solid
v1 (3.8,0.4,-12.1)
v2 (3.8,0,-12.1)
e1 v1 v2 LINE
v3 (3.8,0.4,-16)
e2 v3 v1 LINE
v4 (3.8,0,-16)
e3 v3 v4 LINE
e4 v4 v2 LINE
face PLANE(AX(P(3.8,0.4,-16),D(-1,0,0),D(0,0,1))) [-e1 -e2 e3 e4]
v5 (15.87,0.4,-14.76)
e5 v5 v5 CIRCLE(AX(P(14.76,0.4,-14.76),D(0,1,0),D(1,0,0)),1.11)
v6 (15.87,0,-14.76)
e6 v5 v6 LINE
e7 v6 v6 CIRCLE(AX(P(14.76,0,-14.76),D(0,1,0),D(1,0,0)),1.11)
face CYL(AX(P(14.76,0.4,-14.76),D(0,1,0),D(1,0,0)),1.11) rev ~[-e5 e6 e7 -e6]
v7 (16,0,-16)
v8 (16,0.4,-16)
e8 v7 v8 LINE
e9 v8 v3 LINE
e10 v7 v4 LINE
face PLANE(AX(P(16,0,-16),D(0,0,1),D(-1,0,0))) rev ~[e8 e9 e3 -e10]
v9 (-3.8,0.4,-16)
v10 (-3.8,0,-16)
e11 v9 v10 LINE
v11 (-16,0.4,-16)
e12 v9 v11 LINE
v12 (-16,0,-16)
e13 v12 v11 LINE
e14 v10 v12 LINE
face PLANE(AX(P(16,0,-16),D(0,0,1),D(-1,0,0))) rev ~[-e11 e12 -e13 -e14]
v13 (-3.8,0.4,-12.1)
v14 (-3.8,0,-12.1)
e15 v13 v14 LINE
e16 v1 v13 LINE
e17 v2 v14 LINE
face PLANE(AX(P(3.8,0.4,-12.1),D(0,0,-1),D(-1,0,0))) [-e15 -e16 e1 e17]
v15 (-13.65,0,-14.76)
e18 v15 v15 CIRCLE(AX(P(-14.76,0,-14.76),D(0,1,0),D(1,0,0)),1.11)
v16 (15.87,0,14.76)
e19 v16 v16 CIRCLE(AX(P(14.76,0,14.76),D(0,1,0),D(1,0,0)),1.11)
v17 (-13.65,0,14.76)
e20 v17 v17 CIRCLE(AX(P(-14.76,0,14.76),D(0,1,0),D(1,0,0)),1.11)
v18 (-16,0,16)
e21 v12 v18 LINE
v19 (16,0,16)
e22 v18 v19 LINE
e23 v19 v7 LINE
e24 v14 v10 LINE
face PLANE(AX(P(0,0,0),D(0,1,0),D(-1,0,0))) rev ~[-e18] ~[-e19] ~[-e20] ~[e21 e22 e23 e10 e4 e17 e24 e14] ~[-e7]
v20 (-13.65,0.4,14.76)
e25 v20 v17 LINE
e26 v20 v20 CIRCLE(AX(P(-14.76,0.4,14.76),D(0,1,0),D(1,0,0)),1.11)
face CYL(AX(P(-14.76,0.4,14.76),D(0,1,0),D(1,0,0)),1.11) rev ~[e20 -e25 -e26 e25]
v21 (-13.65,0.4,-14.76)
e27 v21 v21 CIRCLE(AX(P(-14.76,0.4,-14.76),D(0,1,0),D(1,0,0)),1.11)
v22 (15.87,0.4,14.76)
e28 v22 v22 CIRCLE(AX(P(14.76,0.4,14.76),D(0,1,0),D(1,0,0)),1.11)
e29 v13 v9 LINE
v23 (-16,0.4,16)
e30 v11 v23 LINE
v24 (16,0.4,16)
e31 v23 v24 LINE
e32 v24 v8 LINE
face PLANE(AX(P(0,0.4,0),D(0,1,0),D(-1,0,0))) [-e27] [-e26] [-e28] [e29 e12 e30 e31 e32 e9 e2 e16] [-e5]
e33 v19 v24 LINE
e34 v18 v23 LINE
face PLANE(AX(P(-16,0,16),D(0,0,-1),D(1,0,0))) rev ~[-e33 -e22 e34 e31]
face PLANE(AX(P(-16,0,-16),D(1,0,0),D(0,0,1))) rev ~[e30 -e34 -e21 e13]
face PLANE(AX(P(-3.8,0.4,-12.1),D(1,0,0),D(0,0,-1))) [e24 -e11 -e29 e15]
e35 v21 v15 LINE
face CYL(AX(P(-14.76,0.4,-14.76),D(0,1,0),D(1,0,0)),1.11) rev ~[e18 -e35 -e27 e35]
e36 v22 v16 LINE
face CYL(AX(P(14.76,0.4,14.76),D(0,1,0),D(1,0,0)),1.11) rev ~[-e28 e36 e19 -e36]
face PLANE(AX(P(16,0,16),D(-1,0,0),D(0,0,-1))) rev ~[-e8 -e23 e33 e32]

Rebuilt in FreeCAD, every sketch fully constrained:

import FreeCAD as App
import Part
import Sketcher
from FreeCAD import Vector


def add_polygon(sketch, points):
    """Adds a closed chain of lines whose ends are joined by coincident constraints."""
    first, n = sketch.GeometryCount, len(points)
    for a, b in zip(points, points[1:] + points[:1]):
        sketch.addGeometry(Part.LineSegment(App.Vector(*a, 0), App.Vector(*b, 0)), False)
    for i in range(n):
        sketch.addConstraint(Sketcher.Constraint("Coincident", first + i, 2, first + (i + 1) % n, 1))

doc = App.newDocument("Part")
params = doc.addObject("Spreadsheet::Sheet", "Params")
for row, (alias, value) in enumerate([
    ("sketch1_width", "32 mm"),
    ("pad1_length", "0.4 mm"),
    ("sketch2_diameter", "2.22 mm"),
    ("pocket1_length", "0.4 mm"),
    ("sketch3_width", "7.6 mm"),
    ("sketch3_height", "3.9 mm"),
    ("pocket2_length", "0.4 mm"),
], start=1):
    params.set(f"A{row}", alias)
    params.set(f"B{row}", "=" + value)
    params.setAlias(f"B{row}", alias)

body = doc.addObject("PartDesign::Body", "Body")

sketch1 = body.newObject("Sketcher::SketchObject", "Sketch")
sketch1.AttachmentSupport = (doc.getObject("XZ_Plane"), [""])
sketch1.MapMode = "FlatFace"
add_polygon(sketch1, [(-16, -16), (-16, 16), (16, 16), (16, -16)])
sketch1.addConstraint([
    Sketcher.Constraint("Vertical", 0),
    Sketcher.Constraint("Horizontal", 1),
    Sketcher.Constraint("Vertical", 2),
    Sketcher.Constraint("Horizontal", 3),
    Sketcher.Constraint("Symmetric", 0, 2, 2, 2, -1, 1),
    Sketcher.Constraint("Equal", 3, 0),
    Sketcher.Constraint("DistanceX", 1, 1, 1, 2, 32.0),
])
sketch1.setExpression("Constraints[10]", "Params.sketch1_width")
pad1 = body.newObject("PartDesign::Pad", "Pad")
pad1.Profile = sketch1
pad1.setExpression("Length", "Params.pad1_length")
pad1.Reversed = True

sketch2 = body.newObject("Sketcher::SketchObject", "Sketch001")
sketch2.AttachmentSupport = (doc.getObject("XZ_Plane"), [""])
sketch2.MapMode = "FlatFace"
sketch2.AttachmentOffset = App.Placement(Vector(0, 0, -0.4), App.Rotation())
sketch2.addGeometry([
    Part.Circle(Vector(-14.8, 14.8, 0), Vector(0, 0, 1), 1.1),
    Part.Circle(Vector(-14.8, -14.8, 0), Vector(0, 0, 1), 1.1),
    Part.Circle(Vector(14.8, -14.8, 0), Vector(0, 0, 1), 1.1),
    Part.Circle(Vector(14.8, 14.8, 0), Vector(0, 0, 1), 1.1),
], False)
sketch2.addConstraint([
    Sketcher.Constraint("Equal", 0, 1),
    Sketcher.Constraint("Equal", 1, 2),
    Sketcher.Constraint("Equal", 2, 3),
    Sketcher.Constraint("Symmetric", 0, 3, 2, 3, -1, 1),
    Sketcher.Constraint("Symmetric", 1, 3, 3, 3, -1, 1),
    Sketcher.Constraint("Symmetric", 1, 3, 2, 3, -2),
    Sketcher.Constraint("Diameter", 0, 2.22),
    Sketcher.Constraint("DistanceX", 0, 3, -1, 1, 14.76),
    Sketcher.Constraint("DistanceY", -1, 1, 0, 3, 14.76),
])
sketch2.setExpression("Constraints[6]", "Params.sketch2_diameter")
pocket1 = body.newObject("PartDesign::Pocket", "Pocket")
pocket1.Profile = sketch2
pocket1.setExpression("Length", "Params.pocket1_length")
pocket1.Reversed = True

sketch3 = body.newObject("Sketcher::SketchObject", "Sketch002")
sketch3.AttachmentSupport = (doc.getObject("XZ_Plane"), [""])
sketch3.MapMode = "FlatFace"
sketch3.AttachmentOffset = App.Placement(Vector(0, 0, -0.4), App.Rotation())
add_polygon(sketch3, [(3.8, -16), (-3.8, -16), (-3.8, -12.1), (3.8, -12.1)])
sketch3.addConstraint([
    Sketcher.Constraint("Horizontal", 0),
    Sketcher.Constraint("Vertical", 1),
    Sketcher.Constraint("Horizontal", 2),
    Sketcher.Constraint("Vertical", 3),
    Sketcher.Constraint("DistanceX", 0, 2, 0, 1, 7.6),
    Sketcher.Constraint("DistanceY", 1, 1, 1, 2, 3.9),
    Sketcher.Constraint("DistanceY", 0, 2, -1, 1, 16.0),
    Sketcher.Constraint("DistanceX", 0, 2, -1, 1, 3.8),
])
sketch3.setExpression("Constraints[8]", "Params.sketch3_width")
sketch3.setExpression("Constraints[9]", "Params.sketch3_height")
pocket2 = body.newObject("PartDesign::Pocket", "Pocket001")
pocket2.Profile = sketch3
pocket2.setExpression("Length", "Params.pocket2_length")
pocket2.Reversed = True

doc.recompute()
